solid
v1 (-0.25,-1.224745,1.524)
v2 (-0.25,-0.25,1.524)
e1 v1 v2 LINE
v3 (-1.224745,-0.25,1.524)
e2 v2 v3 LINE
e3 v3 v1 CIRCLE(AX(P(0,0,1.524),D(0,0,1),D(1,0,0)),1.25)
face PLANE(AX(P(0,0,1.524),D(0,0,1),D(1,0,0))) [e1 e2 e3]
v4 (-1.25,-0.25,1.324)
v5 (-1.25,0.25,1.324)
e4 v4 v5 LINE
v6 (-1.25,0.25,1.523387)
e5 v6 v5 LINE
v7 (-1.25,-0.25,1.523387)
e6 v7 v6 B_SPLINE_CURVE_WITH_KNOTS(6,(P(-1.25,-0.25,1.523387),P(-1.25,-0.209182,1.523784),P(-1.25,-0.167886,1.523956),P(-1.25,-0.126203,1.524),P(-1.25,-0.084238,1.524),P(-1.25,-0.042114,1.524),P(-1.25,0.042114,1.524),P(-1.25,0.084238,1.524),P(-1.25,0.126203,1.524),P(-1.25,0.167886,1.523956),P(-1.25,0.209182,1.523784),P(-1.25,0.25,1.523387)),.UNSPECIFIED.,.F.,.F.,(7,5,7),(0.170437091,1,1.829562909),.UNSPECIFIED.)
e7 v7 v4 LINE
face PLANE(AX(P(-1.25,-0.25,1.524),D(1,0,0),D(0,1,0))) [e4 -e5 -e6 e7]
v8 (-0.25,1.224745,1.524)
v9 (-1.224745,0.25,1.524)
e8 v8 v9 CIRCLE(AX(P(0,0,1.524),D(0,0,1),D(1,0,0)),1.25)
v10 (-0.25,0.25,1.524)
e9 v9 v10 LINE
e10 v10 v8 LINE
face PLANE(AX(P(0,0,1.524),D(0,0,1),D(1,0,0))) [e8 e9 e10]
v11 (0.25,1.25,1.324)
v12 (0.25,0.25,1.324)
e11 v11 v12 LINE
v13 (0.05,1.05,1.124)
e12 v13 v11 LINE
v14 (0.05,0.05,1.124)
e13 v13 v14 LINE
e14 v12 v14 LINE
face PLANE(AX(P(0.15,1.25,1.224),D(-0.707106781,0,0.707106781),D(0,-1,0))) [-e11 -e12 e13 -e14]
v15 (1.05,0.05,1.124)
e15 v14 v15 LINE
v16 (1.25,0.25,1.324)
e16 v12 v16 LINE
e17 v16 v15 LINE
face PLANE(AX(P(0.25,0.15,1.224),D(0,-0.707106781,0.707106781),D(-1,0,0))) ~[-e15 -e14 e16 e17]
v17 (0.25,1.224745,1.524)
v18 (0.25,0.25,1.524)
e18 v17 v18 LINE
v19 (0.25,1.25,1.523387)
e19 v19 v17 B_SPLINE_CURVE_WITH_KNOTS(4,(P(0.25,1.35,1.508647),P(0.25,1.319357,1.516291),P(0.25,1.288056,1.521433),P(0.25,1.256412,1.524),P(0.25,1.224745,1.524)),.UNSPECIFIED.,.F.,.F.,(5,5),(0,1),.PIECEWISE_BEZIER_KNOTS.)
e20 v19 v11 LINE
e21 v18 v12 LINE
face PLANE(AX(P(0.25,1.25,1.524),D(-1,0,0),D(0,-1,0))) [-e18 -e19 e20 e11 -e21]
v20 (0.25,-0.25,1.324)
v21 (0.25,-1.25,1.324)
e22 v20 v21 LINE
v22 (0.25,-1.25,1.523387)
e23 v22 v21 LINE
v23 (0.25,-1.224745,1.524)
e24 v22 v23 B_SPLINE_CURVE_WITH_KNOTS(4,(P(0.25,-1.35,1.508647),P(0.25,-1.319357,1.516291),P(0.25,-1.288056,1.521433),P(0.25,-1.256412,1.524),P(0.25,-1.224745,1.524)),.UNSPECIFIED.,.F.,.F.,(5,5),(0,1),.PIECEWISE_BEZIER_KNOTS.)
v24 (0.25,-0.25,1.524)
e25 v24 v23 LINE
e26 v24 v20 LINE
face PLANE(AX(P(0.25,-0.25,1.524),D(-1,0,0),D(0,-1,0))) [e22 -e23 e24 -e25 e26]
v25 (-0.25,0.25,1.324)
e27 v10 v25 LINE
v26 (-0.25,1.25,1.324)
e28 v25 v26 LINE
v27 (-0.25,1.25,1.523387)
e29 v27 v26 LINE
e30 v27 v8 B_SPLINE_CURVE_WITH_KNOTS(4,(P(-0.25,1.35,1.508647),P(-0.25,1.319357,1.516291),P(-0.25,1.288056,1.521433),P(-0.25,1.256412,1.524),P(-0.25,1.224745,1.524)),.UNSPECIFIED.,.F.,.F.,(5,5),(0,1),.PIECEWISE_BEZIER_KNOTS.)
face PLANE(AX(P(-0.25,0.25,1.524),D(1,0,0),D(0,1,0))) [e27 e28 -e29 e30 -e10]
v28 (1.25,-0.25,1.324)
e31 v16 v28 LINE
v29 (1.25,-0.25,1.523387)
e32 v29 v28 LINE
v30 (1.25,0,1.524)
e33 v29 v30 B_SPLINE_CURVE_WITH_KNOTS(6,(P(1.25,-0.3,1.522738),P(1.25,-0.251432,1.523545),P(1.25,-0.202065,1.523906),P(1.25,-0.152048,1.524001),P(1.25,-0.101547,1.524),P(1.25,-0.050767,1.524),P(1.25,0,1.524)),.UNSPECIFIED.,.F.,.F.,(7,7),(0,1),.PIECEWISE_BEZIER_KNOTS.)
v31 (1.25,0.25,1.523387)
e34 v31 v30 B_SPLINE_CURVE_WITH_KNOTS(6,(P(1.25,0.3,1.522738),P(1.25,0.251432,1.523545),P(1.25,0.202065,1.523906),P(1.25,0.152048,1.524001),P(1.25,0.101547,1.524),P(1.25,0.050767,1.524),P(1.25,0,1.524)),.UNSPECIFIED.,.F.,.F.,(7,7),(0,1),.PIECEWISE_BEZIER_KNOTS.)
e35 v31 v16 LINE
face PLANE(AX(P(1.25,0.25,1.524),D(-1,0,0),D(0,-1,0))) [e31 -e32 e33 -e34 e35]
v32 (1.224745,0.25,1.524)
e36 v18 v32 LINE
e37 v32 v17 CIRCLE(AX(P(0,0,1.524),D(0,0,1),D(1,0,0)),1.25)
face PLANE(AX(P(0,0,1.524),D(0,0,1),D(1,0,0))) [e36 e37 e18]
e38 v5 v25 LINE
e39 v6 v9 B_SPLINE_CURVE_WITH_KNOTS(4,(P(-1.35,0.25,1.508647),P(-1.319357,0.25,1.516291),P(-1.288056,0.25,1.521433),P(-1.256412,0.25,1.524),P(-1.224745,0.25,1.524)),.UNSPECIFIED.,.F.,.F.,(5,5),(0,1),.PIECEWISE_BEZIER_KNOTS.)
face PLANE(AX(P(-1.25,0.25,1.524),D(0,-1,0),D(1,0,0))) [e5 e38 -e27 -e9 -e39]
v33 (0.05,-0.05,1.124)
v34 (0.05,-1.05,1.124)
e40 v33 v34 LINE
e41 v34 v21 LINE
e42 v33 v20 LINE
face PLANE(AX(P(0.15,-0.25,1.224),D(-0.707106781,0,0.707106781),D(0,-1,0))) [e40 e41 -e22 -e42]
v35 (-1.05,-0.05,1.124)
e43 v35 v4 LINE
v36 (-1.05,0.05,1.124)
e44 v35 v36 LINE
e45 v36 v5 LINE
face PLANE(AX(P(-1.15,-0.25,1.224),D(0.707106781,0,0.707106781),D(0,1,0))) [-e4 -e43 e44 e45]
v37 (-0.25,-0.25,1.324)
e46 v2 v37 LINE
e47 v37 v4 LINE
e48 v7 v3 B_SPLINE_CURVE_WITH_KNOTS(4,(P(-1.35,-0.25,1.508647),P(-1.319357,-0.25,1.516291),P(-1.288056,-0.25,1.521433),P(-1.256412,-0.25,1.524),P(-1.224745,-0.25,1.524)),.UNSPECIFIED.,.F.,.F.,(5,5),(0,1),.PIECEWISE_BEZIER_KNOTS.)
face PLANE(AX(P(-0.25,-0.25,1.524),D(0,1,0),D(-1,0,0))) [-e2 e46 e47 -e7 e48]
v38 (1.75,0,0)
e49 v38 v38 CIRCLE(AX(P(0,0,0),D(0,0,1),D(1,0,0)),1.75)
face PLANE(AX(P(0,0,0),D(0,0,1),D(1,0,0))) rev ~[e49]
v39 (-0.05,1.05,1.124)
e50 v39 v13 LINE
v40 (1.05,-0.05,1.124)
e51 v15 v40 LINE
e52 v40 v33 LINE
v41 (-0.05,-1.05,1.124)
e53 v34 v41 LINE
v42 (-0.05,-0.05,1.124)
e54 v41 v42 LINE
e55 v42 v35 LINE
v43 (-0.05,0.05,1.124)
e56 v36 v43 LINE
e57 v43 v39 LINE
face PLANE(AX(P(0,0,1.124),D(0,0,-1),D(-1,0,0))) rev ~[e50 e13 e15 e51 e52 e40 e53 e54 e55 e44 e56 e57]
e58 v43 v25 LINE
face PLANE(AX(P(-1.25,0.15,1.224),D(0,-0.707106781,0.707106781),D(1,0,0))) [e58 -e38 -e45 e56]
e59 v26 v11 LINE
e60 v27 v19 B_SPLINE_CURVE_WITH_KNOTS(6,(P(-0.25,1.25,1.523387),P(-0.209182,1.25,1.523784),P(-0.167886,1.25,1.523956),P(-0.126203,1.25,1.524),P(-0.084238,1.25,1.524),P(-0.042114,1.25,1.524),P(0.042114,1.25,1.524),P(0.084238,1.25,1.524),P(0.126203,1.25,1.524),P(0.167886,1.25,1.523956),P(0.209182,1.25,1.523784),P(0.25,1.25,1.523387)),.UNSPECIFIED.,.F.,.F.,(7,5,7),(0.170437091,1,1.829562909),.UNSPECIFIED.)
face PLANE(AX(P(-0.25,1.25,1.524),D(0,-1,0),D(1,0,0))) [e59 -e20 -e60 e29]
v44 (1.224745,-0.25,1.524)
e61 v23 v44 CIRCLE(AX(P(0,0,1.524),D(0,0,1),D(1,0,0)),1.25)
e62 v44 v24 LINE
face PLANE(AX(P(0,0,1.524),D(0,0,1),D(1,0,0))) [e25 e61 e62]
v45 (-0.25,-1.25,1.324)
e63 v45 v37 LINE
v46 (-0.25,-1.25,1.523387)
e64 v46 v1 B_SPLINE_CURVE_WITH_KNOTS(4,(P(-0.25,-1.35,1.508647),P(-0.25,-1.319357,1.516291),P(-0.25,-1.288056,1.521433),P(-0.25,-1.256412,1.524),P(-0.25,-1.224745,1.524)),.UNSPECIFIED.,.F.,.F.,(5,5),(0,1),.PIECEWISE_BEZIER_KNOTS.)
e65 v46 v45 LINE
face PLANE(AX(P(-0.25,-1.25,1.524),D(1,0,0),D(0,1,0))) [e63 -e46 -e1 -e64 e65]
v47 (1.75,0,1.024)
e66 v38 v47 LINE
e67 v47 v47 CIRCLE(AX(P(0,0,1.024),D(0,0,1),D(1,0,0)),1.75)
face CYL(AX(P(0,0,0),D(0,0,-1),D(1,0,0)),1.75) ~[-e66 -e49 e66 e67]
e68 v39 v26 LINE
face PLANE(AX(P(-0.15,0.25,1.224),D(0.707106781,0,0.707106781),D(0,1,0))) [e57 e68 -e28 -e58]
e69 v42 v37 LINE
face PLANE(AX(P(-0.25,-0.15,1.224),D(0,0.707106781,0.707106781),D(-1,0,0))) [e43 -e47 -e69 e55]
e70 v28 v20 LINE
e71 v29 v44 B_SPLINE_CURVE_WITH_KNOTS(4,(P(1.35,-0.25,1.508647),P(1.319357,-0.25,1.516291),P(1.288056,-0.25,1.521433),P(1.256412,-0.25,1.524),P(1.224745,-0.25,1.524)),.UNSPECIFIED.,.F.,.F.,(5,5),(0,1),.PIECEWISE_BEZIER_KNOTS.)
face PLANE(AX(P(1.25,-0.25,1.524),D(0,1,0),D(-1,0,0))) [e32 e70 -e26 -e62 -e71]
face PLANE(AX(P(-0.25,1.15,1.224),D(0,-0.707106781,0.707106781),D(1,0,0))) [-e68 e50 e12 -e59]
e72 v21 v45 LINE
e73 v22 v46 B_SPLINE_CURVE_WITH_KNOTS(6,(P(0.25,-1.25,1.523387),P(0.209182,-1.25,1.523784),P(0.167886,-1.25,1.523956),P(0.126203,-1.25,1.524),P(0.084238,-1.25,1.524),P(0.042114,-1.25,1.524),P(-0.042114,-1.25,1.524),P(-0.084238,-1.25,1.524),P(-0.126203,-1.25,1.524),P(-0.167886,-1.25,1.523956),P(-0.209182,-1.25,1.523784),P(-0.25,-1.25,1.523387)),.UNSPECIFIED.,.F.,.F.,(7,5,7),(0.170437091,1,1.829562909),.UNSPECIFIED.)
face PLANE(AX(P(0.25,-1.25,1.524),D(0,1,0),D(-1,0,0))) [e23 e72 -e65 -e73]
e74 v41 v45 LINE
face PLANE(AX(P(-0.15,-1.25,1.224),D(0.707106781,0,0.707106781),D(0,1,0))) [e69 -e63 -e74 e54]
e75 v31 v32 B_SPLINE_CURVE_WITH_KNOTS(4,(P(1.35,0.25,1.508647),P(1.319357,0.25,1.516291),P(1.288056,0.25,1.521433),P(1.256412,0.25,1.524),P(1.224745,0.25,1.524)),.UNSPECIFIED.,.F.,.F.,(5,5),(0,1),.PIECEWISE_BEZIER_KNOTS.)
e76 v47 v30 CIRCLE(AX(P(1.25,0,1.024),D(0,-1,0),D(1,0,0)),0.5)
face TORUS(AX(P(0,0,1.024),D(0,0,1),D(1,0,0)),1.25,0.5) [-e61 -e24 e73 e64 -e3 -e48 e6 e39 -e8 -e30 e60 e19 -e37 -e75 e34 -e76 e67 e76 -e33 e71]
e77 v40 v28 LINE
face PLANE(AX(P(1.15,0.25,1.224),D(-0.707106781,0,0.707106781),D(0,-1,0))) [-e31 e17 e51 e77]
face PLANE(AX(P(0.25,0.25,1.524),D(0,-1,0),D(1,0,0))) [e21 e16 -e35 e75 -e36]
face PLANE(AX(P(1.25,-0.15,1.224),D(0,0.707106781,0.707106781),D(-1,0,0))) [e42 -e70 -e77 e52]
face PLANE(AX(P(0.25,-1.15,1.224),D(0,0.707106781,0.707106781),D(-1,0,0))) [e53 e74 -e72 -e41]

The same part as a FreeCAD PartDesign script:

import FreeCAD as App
import Part
import Sketcher
from FreeCAD import Vector
Q = App.Units.Quantity


def edges_at(feature, points):
    """Names of the edges that pass closest to the given points."""
    edges = feature.Shape.Edges
    near = lambda p: min(range(len(edges)), key=lambda i: edges[i].distToShape(Part.Vertex(*p))[0])
    return sorted({f"Edge{near(p) + 1}" for p in points})

doc = App.newDocument("Part")
body = doc.addObject("PartDesign::Body", "Body")

sketch1 = doc.addObject("Sketcher::SketchObject", "Sketch")
body.addObject(sketch1)
sketch1.AttachmentSupport = (doc.XY_Plane, [""])
sketch1.MapMode = "FlatFace"
sketch1.addGeometry(Part.Circle(Vector(0, 0, 0), Vector(0, 0, 1), 1.8), False)
sketch1.addConstraint([
    Sketcher.Constraint("Coincident", 0, 3, -1, 1),
    Sketcher.Constraint("Diameter", 0, Q("3.5 mm")),
])
pad1 = doc.addObject("PartDesign::Pad", "Pad")
body.addObject(pad1)
pad1.Profile = sketch1
pad1.Length = 1.524
doc.recompute()

fillet = doc.addObject("PartDesign::Fillet", "Fillet")
body.addObject(fillet)
fillet.Base = (pad1, edges_at(pad1, [(-1.75, 0, 1.524)]))
fillet.Radius = 0.5

sketch2 = doc.addObject("Sketcher::SketchObject", "Sketch001")
body.addObject(sketch2)
sketch2.AttachmentSupport = (doc.XY_Plane, [""])
sketch2.MapMode = "FlatFace"
sketch2.AttachmentOffset = App.Placement(Vector(0, 0, 1.524), App.Rotation())
sketch2.addGeometry([
    Part.LineSegment(Vector(0.2, -1.2, 0), Vector(0.2, -0.2, 0)),
    Part.LineSegment(Vector(0.2, -0.2, 0), Vector(1.2, -0.2, 0)),
    Part.LineSegment(Vector(1.2, -0.2, 0), Vector(1.2, 0.2, 0)),
    Part.LineSegment(Vector(1.2, 0.2, 0), Vector(0.2, 0.2, 0)),
    Part.LineSegment(Vector(0.2, 0.2, 0), Vector(0.2, 1.2, 0)),
    Part.LineSegment(Vector(0.2, 1.2, 0), Vector(-0.2, 1.2, 0)),
    Part.LineSegment(Vector(-0.2, 1.2, 0), Vector(-0.2, 0.2, 0)),
    Part.LineSegment(Vector(-0.2, 0.2, 0), Vector(-1.2, 0.2, 0)),
    Part.LineSegment(Vector(-1.2, 0.2, 0), Vector(-1.2, -0.2, 0)),
    Part.LineSegment(Vector(-1.2, -0.2, 0), Vector(-0.2, -0.2, 0)),
    Part.LineSegment(Vector(-0.2, -0.2, 0), Vector(-0.2, -1.2, 0)),
    Part.LineSegment(Vector(-0.2, -1.2, 0), Vector(0.2, -1.2, 0)),
], False)
sketch2.addConstraint([
    Sketcher.Constraint("Coincident", 0, 2, 1, 1),
    Sketcher.Constraint("Coincident", 1, 2, 2, 1),
    Sketcher.Constraint("Coincident", 2, 2, 3, 1),
    Sketcher.Constraint("Coincident", 3, 2, 4, 1),
    Sketcher.Constraint("Coincident", 4, 2, 5, 1),
    Sketcher.Constraint("Coincident", 5, 2, 6, 1),
    Sketcher.Constraint("Coincident", 6, 2, 7, 1),
    Sketcher.Constraint("Coincident", 7, 2, 8, 1),
    Sketcher.Constraint("Coincident", 8, 2, 9, 1),
    Sketcher.Constraint("Coincident", 9, 2, 10, 1),
    Sketcher.Constraint("Coincident", 10, 2, 11, 1),
    Sketcher.Constraint("Coincident", 11, 2, 0, 1),
    Sketcher.Constraint("Vertical", 0),
    Sketcher.Constraint("Horizontal", 1),
    Sketcher.Constraint("Vertical", 2),
    Sketcher.Constraint("Horizontal", 3),
    Sketcher.Constraint("Vertical", 4),
    Sketcher.Constraint("Horizontal", 5),
    Sketcher.Constraint("Vertical", 6),
    Sketcher.Constraint("Horizontal", 7),
    Sketcher.Constraint("Vertical", 8),
    Sketcher.Constraint("Horizontal", 9),
    Sketcher.Constraint("Vertical", 10),
    Sketcher.Constraint("Horizontal", 11),
    Sketcher.Constraint("Symmetric", 0, 2, 6, 2, -1, 1),
    Sketcher.Constraint("Symmetric", 2, 2, 8, 2, -1, 1),
    Sketcher.Constraint("Symmetric", 4, 2, 10, 2, -1, 1),
    Sketcher.Constraint("Symmetric", 3, 2, 6, 2, -2),
    Sketcher.Constraint("Equal", 9, 0),
    Sketcher.Constraint("Equal", 11, 2),
    Sketcher.Constraint("DistanceX", 1, 1, 1, 2, Q("1 mm")),
    Sketcher.Constraint("DistanceX", 5, 2, 5, 1, Q("0.5 mm")),
])
pocket1 = doc.addObject("PartDesign::Pocket", "Pocket")
body.addObject(pocket1)
pocket1.Profile = sketch2
pocket1.Length = 0.4
doc.recompute()

chamfer = doc.addObject("PartDesign::Chamfer", "Chamfer")
body.addObject(chamfer)
chamfer.Base = (pocket1, edges_at(pocket1, [
    (0.75, 0.25, 1.124),
    (0.25, -0.75, 1.124),
    (0, -1.25, 1.124),
    (-0.25, -0.75, 1.124),
    (-0.75, -0.25, 1.124),
    (-1.25, 0, 1.124),
    (-0.75, 0.25, 1.124),
    (-0.25, 0.75, 1.124),
    (0, 1.25, 1.124),
    (0.25, 0.75, 1.124),
    (1.25, 0, 1.124),
    (0.75, -0.25, 1.124),
]))
chamfer.Size = 0.2

doc.recompute()
